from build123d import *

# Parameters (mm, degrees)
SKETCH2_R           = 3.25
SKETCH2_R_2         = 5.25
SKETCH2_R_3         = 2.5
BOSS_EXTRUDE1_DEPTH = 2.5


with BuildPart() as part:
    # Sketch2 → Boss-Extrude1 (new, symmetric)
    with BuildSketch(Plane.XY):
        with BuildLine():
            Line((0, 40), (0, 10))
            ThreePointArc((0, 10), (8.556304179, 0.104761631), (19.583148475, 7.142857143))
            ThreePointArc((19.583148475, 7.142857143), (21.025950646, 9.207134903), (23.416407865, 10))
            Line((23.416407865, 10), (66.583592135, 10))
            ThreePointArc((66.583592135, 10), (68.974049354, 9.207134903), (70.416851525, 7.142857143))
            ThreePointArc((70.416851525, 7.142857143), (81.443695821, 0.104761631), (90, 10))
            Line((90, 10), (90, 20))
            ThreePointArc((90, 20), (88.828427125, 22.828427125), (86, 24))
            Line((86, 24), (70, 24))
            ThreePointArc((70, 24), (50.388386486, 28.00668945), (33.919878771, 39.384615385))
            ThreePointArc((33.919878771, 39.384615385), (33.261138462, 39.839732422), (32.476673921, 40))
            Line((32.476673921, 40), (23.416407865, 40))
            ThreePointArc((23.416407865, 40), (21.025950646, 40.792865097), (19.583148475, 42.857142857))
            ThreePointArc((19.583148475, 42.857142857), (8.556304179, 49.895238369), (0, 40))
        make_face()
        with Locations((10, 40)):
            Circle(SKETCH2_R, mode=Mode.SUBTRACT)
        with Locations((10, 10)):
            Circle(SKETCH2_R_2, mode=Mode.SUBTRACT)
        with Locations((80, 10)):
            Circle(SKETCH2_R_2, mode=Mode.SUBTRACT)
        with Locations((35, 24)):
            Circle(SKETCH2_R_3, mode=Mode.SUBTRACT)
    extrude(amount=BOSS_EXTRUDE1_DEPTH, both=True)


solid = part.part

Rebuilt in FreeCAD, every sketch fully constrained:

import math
import FreeCAD as App
import Part
import Sketcher

V = App.Vector

doc = App.newDocument("Part")
params = doc.addObject("Spreadsheet::Sheet", "Params")
for row, (alias, value) in enumerate([
    ("sketch1_diameter", "5 mm"),
    ("sketch1_radius", "10 mm"),
    ("sketch1_radius2", "4 mm"),
    ("sketch1_radius3", "50 mm"),
    ("sketch1_radius4", "2 mm"),
    ("pad1_length", "5 mm"),
], start=1):
    params.set(f"A{row}", alias)
    params.set(f"B{row}", "=" + value)
    params.setAlias(f"B{row}", alias)

body = doc.addObject("PartDesign::Body", "Body")

# Sketch on XY plane
sketch1 = doc.addObject("Sketcher::SketchObject", "Sketch")
body.addObject(sketch1)
sketch1.AttachmentSupport = (doc.XY_Plane, [""])
sketch1.MapMode = "FlatFace"
sketch1.addGeometry([
    Part.LineSegment(V(0, 40, 0), V(0, 10, 0)),  # 0
    Part.ArcOfCircle(Part.Circle(V(10, 10, 0), V(0, 0, 1), 10), math.radians(180), math.radians(343)),  # 1
    Part.ArcOfCircle(Part.Circle(V(23.4, 6, 0), V(0, 0, 1), 4), math.radians(90), math.radians(163)),  # 2
    Part.LineSegment(V(23.4, 10, 0), V(66.6, 10, 0)),  # 3
    Part.ArcOfCircle(Part.Circle(V(66.6, 6, 0), V(0, 0, 1), 4), math.radians(17), math.radians(90)),  # 4
    Part.ArcOfCircle(Part.Circle(V(80, 10, 0), V(0, 0, 1), 10), math.radians(-163), math.radians(0)),  # 5
    Part.LineSegment(V(90, 10, 0), V(90, 20, 0)),  # 6
    Part.ArcOfCircle(Part.Circle(V(86, 20, 0), V(0, 0, 1), 4), math.radians(0), math.radians(90)),  # 7
    Part.LineSegment(V(86, 24, 0), V(70, 24, 0)),  # 8
    Part.ArcOfCircle(Part.Circle(V(70, 74, 0), V(0, 0, 1), 50), math.radians(-136), math.radians(-90)),  # 9
    Part.ArcOfCircle(Part.Circle(V(32.5, 38, 0), V(0, 0, 1), 2), math.radians(44), math.radians(90)),  # 10
    Part.LineSegment(V(32.5, 40, 0), V(23.4, 40, 0)),  # 11
    Part.ArcOfCircle(Part.Circle(V(23.4, 44, 0), V(0, 0, 1), 4), math.radians(-163), math.radians(-90)),  # 12
    Part.ArcOfCircle(Part.Circle(V(10, 40, 0), V(0, 0, 1), 10), math.radians(17), math.radians(180)),  # 13
    Part.Circle(V(10, 10, 0), V(0, 0, 1), 5.2),  # 14
    Part.Circle(V(80, 10, 0), V(0, 0, 1), 5.2),  # 15
    Part.Circle(V(35, 24, 0), V(0, 0, 1), 2.5),  # 16
    Part.Circle(V(10, 40, 0), V(0, 0, 1), 3.2),  # 17
], False)
sketch1.addConstraint([
    Sketcher.Constraint("Tangent", 0, 2, 1, 1),
    Sketcher.Constraint("Tangent", 1, 2, 2, 2),
    Sketcher.Constraint("Tangent", 2, 1, 3, 1),
    Sketcher.Constraint("Tangent", 3, 2, 4, 2),
    Sketcher.Constraint("Tangent", 4, 1, 5, 1),
    Sketcher.Constraint("Tangent", 5, 2, 6, 1),
    Sketcher.Constraint("Tangent", 6, 2, 7, 1),
    Sketcher.Constraint("Tangent", 7, 2, 8, 1),
    Sketcher.Constraint("Tangent", 8, 2, 9, 2),
    Sketcher.Constraint("Tangent", 9, 1, 10, 1),
    Sketcher.Constraint("Tangent", 10, 2, 11, 1),
    Sketcher.Constraint("Tangent", 11, 2, 12, 2),
    Sketcher.Constraint("Tangent", 12, 1, 13, 1),
    Sketcher.Constraint("Tangent", 13, 2, 0, 1),
    Sketcher.Constraint("Vertical", 0),
    Sketcher.Constraint("Horizontal", 3),
    Sketcher.Constraint("Vertical", 6),
    Sketcher.Constraint("Horizontal", 8),
    Sketcher.Constraint("Horizontal", 11),
    Sketcher.Constraint("Coincident", 14, 3, 1, 3),
    Sketcher.Constraint("Coincident", 15, 3, 5, 3),
    Sketcher.Constraint("Coincident", 17, 3, 13, 3),
    Sketcher.Constraint("Equal", 2, 4),
    Sketcher.Constraint("Equal", 1, 5),
    Sketcher.Constraint("Equal", 4, 7),
    Sketcher.Constraint("Equal", 7, 12),
    Sketcher.Constraint("Equal", 5, 13),
    Sketcher.Constraint("Equal", 14, 15),
    Sketcher.Constraint("PointOnObject", 0, 2, -2),
    Sketcher.Constraint("Horizontal", 1, 3, 5, 3),
    Sketcher.Constraint("Horizontal", 0, 2, 2, 1),
    Sketcher.Constraint("Horizontal", 16, 3, 7, 2),
    Sketcher.Constraint("Horizontal", 17, 3, 10, 2),
    Sketcher.Constraint("Diameter", 16, 5.0),
    Sketcher.Constraint("Radius", 1, 10.0),
    Sketcher.Constraint("Radius", 2, 4.0),
    Sketcher.Constraint("Radius", 9, 50.0),
    Sketcher.Constraint("Radius", 10, 2.0),
    Sketcher.Constraint("Diameter", 14, 10.5),
    Sketcher.Constraint("Diameter", 17, 6.5),
    Sketcher.Constraint("DistanceX", 8, 2, 8, 1, 16.0),
    Sketcher.Constraint("DistanceY", 0, 2, 0, 1, 30.0),
    Sketcher.Constraint("DistanceY", 6, 1, 6, 2, 10.0),
    Sketcher.Constraint("DistanceY", -1, 1, 1, 3, 10.0),
    Sketcher.Constraint("DistanceX", -1, 1, 5, 3, 80.0),
    Sketcher.Constraint("DistanceX", -1, 1, 16, 3, 35.0),
])
sketch1.setExpression("Constraints[33]", "Params.sketch1_diameter")
sketch1.setExpression("Constraints[34]", "Params.sketch1_radius")
sketch1.setExpression("Constraints[35]", "Params.sketch1_radius2")
sketch1.setExpression("Constraints[36]", "Params.sketch1_radius3")
sketch1.setExpression("Constraints[37]", "Params.sketch1_radius4")
pad1 = doc.addObject("PartDesign::Pad", "Pad")
body.addObject(pad1)
pad1.Profile = sketch1
pad1.setExpression("Length", "Params.pad1_length")
pad1.Midplane = True

doc.recompute()
